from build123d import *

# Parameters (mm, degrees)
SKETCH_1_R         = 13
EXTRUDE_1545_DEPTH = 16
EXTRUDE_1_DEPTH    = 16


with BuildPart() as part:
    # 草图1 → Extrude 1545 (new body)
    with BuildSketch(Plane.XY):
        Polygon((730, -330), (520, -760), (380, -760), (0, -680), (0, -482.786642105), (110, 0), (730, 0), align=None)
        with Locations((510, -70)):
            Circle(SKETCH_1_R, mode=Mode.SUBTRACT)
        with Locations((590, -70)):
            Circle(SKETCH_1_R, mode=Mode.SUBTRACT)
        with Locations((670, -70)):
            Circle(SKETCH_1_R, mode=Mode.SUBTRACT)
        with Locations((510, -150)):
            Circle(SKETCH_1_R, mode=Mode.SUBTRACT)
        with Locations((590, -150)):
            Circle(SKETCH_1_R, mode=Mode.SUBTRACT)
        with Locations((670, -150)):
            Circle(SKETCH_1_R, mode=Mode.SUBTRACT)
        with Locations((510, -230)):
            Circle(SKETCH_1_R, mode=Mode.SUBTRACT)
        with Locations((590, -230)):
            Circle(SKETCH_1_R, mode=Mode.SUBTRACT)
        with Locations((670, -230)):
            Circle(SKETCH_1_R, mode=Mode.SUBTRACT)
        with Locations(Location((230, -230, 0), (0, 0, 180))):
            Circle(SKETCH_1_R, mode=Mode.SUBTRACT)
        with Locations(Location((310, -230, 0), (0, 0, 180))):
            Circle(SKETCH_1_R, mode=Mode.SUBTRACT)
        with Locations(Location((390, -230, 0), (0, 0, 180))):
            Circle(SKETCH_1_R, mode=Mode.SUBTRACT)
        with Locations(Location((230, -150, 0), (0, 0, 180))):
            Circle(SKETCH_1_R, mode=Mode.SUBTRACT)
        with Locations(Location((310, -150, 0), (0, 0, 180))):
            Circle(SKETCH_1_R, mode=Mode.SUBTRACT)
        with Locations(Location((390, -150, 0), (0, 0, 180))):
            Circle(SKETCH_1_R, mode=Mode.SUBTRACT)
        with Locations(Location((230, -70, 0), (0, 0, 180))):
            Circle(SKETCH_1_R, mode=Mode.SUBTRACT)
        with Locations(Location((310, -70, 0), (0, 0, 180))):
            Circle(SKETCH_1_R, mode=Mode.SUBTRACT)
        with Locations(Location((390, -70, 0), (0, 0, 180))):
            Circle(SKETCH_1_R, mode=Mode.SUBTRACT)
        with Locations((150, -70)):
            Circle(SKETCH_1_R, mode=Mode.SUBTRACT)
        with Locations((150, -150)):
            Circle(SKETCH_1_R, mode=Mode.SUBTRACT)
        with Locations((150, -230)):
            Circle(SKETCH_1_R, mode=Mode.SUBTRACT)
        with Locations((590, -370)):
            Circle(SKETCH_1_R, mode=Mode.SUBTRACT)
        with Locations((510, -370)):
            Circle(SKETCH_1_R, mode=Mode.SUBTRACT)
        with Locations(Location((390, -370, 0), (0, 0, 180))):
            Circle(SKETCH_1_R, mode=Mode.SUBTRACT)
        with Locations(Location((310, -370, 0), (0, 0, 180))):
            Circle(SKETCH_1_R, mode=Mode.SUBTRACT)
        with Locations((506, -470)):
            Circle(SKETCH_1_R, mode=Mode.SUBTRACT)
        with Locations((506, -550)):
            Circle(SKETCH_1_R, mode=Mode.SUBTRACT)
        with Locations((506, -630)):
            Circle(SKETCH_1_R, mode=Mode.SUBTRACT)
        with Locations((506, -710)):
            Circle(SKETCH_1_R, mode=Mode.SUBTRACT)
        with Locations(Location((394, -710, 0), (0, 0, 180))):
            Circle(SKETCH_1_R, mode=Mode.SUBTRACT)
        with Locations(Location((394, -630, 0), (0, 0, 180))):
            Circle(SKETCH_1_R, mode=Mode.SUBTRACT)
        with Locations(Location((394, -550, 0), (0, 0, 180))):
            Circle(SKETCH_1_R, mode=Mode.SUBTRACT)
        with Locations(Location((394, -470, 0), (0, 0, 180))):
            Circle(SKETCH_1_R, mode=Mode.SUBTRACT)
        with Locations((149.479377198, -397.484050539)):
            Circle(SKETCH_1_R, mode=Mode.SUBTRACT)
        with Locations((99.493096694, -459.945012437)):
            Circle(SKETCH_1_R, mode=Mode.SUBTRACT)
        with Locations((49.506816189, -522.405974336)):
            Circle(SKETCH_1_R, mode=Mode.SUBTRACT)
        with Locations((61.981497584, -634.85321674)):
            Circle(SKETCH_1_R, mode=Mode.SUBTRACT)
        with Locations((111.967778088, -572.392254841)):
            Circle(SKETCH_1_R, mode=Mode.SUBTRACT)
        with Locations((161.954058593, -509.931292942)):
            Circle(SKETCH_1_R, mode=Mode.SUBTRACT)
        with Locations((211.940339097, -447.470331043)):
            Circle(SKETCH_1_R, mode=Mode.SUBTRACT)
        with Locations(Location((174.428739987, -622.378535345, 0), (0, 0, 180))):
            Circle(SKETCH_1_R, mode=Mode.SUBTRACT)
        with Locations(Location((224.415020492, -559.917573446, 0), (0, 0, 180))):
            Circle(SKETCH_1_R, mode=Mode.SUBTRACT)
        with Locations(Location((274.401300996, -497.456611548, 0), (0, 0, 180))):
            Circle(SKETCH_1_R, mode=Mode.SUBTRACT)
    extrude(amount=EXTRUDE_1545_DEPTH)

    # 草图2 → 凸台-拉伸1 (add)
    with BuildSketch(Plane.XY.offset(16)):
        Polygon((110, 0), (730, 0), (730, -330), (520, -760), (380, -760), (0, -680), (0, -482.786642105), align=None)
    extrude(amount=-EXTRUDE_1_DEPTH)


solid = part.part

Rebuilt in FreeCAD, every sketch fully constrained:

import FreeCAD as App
import Part
import Sketcher
Q = App.Units.Quantity


def add_polygon(sketch, points):
    """Adds a closed chain of lines whose ends are joined by coincident constraints."""
    first, n = sketch.GeometryCount, len(points)
    for a, b in zip(points, points[1:] + points[:1]):
        sketch.addGeometry(Part.LineSegment(App.Vector(*a, 0), App.Vector(*b, 0)), False)
    for i in range(n):
        sketch.addConstraint(Sketcher.Constraint("Coincident", first + i, 2, first + (i + 1) % n, 1))

doc = App.newDocument("Part")
params = doc.addObject("Spreadsheet::Sheet", "Params")
for row, (alias, value) in enumerate([
    ("sketch1_diameter", "26 mm"),
    ("sketch1_width", "620 mm"),
    ("sketch1_width2", "140 mm"),
    ("sketch1_height", "330 mm"),
    ("pad1_length", "16 mm"),
    ("sketch2_width", "620 mm"),
    ("sketch2_width2", "140 mm"),
    ("sketch2_height", "330 mm"),
    ("pad2_length", "16 mm"),
], start=1):
    params.set(f"A{row}", alias)
    params.set(f"B{row}", "=" + value)
    params.setAlias(f"B{row}", alias)

body = doc.addObject("PartDesign::Body", "Body")

# Sketch on XY plane
sketch1 = body.newObject("Sketcher::SketchObject", "Sketch")
sketch1.AttachmentSupport = (doc.getObject("XY_Plane"), [""])
sketch1.MapMode = "FlatFace"
add_polygon(sketch1, [(520, -760), (730, -330), (730, 0), (110, 0), (0, -483), (0, -680), (380, -760)])  # lines 0-6
sketch1.addGeometry(Part.Circle(App.Vector(506, -710, 0), App.Vector(0, 0, 1), 13), False)  # 7
sketch1.addGeometry(Part.Circle(App.Vector(394, -710, 0), App.Vector(0, 0, 1), 13), False)  # 8
sketch1.addGeometry(Part.Circle(App.Vector(506, -630, 0), App.Vector(0, 0, 1), 13), False)  # 9
sketch1.addGeometry(Part.Circle(App.Vector(394, -630, 0), App.Vector(0, 0, 1), 13), False)  # 10
sketch1.addGeometry(Part.Circle(App.Vector(506, -550, 0), App.Vector(0, 0, 1), 13), False)  # 11
sketch1.addGeometry(Part.Circle(App.Vector(394, -550, 0), App.Vector(0, 0, 1), 13), False)  # 12
sketch1.addGeometry(Part.Circle(App.Vector(506, -470, 0), App.Vector(0, 0, 1), 13), False)  # 13
sketch1.addGeometry(Part.Circle(App.Vector(394, -470, 0), App.Vector(0, 0, 1), 13), False)  # 14
sketch1.addGeometry(Part.Circle(App.Vector(224, -560, 0), App.Vector(0, 0, 1), 13), False)  # 15
sketch1.addGeometry(Part.Circle(App.Vector(174, -622, 0), App.Vector(0, 0, 1), 13), False)  # 16
sketch1.addGeometry(Part.Circle(App.Vector(62, -635, 0), App.Vector(0, 0, 1), 13), False)  # 17
sketch1.addGeometry(Part.Circle(App.Vector(112, -572, 0), App.Vector(0, 0, 1), 13), False)  # 18
sketch1.addGeometry(Part.Circle(App.Vector(274, -497, 0), App.Vector(0, 0, 1), 13), False)  # 19
sketch1.addGeometry(Part.Circle(App.Vector(212, -447, 0), App.Vector(0, 0, 1), 13), False)  # 20
sketch1.addGeometry(Part.Circle(App.Vector(162, -510, 0), App.Vector(0, 0, 1), 13), False)  # 21
sketch1.addGeometry(Part.Circle(App.Vector(50, -522, 0), App.Vector(0, 0, 1), 13), False)  # 22
sketch1.addGeometry(Part.Circle(App.Vector(149, -397, 0), App.Vector(0, 0, 1), 13), False)  # 23
sketch1.addGeometry(Part.Circle(App.Vector(99, -460, 0), App.Vector(0, 0, 1), 13), False)  # 24
sketch1.addGeometry(Part.Circle(App.Vector(590, -370, 0), App.Vector(0, 0, 1), 13), False)  # 25
sketch1.addGeometry(Part.Circle(App.Vector(670, -230, 0), App.Vector(0, 0, 1), 13), False)  # 26
sketch1.addGeometry(Part.Circle(App.Vector(590, -230, 0), App.Vector(0, 0, 1), 13), False)  # 27
sketch1.addGeometry(Part.Circle(App.Vector(510, -370, 0), App.Vector(0, 0, 1), 13), False)  # 28
sketch1.addGeometry(Part.Circle(App.Vector(390, -370, 0), App.Vector(0, 0, 1), 13), False)  # 29
sketch1.addGeometry(Part.Circle(App.Vector(510, -230, 0), App.Vector(0, 0, 1), 13), False)  # 30
sketch1.addGeometry(Part.Circle(App.Vector(390, -230, 0), App.Vector(0, 0, 1), 13), False)  # 31
sketch1.addGeometry(Part.Circle(App.Vector(670, -150, 0), App.Vector(0, 0, 1), 13), False)  # 32
sketch1.addGeometry(Part.Circle(App.Vector(590, -150, 0), App.Vector(0, 0, 1), 13), False)  # 33
sketch1.addGeometry(Part.Circle(App.Vector(670, -70, 0), App.Vector(0, 0, 1), 13), False)  # 34
sketch1.addGeometry(Part.Circle(App.Vector(590, -70, 0), App.Vector(0, 0, 1), 13), False)  # 35
sketch1.addGeometry(Part.Circle(App.Vector(510, -150, 0), App.Vector(0, 0, 1), 13), False)  # 36
sketch1.addGeometry(Part.Circle(App.Vector(390, -150, 0), App.Vector(0, 0, 1), 13), False)  # 37
sketch1.addGeometry(Part.Circle(App.Vector(510, -70, 0), App.Vector(0, 0, 1), 13), False)  # 38
sketch1.addGeometry(Part.Circle(App.Vector(390, -70, 0), App.Vector(0, 0, 1), 13), False)  # 39
sketch1.addGeometry(Part.Circle(App.Vector(310, -370, 0), App.Vector(0, 0, 1), 13), False)  # 40
sketch1.addGeometry(Part.Circle(App.Vector(310, -230, 0), App.Vector(0, 0, 1), 13), False)  # 41
sketch1.addGeometry(Part.Circle(App.Vector(230, -230, 0), App.Vector(0, 0, 1), 13), False)  # 42
sketch1.addGeometry(Part.Circle(App.Vector(150, -230, 0), App.Vector(0, 0, 1), 13), False)  # 43
sketch1.addGeometry(Part.Circle(App.Vector(310, -150, 0), App.Vector(0, 0, 1), 13), False)  # 44
sketch1.addGeometry(Part.Circle(App.Vector(230, -150, 0), App.Vector(0, 0, 1), 13), False)  # 45
sketch1.addGeometry(Part.Circle(App.Vector(310, -70, 0), App.Vector(0, 0, 1), 13), False)  # 46
sketch1.addGeometry(Part.Circle(App.Vector(230, -70, 0), App.Vector(0, 0, 1), 13), False)  # 47
sketch1.addGeometry(Part.Circle(App.Vector(150, -150, 0), App.Vector(0, 0, 1), 13), False)  # 48
sketch1.addGeometry(Part.Circle(App.Vector(150, -70, 0), App.Vector(0, 0, 1), 13), False)  # 49
sketch1.addConstraint([
    Sketcher.Constraint("Vertical", 1),
    Sketcher.Constraint("Horizontal", 2),
    Sketcher.Constraint("Vertical", 4),
    Sketcher.Constraint("Horizontal", 6),
    Sketcher.Constraint("Equal", 7, 8),
    Sketcher.Constraint("Equal", 8, 9),
    Sketcher.Constraint("Equal", 9, 10),
    Sketcher.Constraint("Equal", 10, 11),
    Sketcher.Constraint("Equal", 11, 12),
    Sketcher.Constraint("Equal", 12, 13),
    Sketcher.Constraint("Equal", 13, 14),
    Sketcher.Constraint("Equal", 14, 15),
    Sketcher.Constraint("Equal", 15, 16),
    Sketcher.Constraint("Equal", 16, 17),
    Sketcher.Constraint("Equal", 17, 18),
    Sketcher.Constraint("Equal", 18, 19),
    Sketcher.Constraint("Equal", 19, 20),
    Sketcher.Constraint("Equal", 20, 21),
    Sketcher.Constraint("Equal", 21, 22),
    Sketcher.Constraint("Equal", 22, 23),
    Sketcher.Constraint("Equal", 23, 24),
    Sketcher.Constraint("Equal", 24, 25),
    Sketcher.Constraint("Equal", 25, 26),
    Sketcher.Constraint("Equal", 26, 27),
    Sketcher.Constraint("Equal", 27, 28),
    Sketcher.Constraint("Equal", 28, 29),
    Sketcher.Constraint("Equal", 29, 30),
    Sketcher.Constraint("Equal", 30, 31),
    Sketcher.Constraint("Equal", 31, 32),
    Sketcher.Constraint("Equal", 32, 33),
    Sketcher.Constraint("Equal", 33, 34),
    Sketcher.Constraint("Equal", 34, 35),
    Sketcher.Constraint("Equal", 35, 36),
    Sketcher.Constraint("Equal", 36, 37),
    Sketcher.Constraint("Equal", 37, 38),
    Sketcher.Constraint("Equal", 38, 39),
    Sketcher.Constraint("Equal", 39, 40),
    Sketcher.Constraint("Equal", 40, 41),
    Sketcher.Constraint("Equal", 41, 42),
    Sketcher.Constraint("Equal", 42, 43),
    Sketcher.Constraint("Equal", 43, 44),
    Sketcher.Constraint("Equal", 44, 45),
    Sketcher.Constraint("Equal", 45, 46),
    Sketcher.Constraint("Equal", 46, 47),
    Sketcher.Constraint("Equal", 47, 48),
    Sketcher.Constraint("Equal", 48, 49),
    Sketcher.Constraint("PointOnObject", 1, 2, -1),
    Sketcher.Constraint("PointOnObject", 3, 2, -2),
    Sketcher.Constraint("Horizontal", 7, 3, 8, 3),
    Sketcher.Constraint("Horizontal", 9, 3, 10, 3),
    Sketcher.Constraint("Horizontal", 11, 3, 12, 3),
    Sketcher.Constraint("Horizontal", 13, 3, 14, 3),
    Sketcher.Constraint("Horizontal", 26, 3, 27, 3),
    Sketcher.Constraint("Horizontal", 25, 3, 28, 3),
    Sketcher.Constraint("Horizontal", 28, 3, 29, 3),
    Sketcher.Constraint("Horizontal", 27, 3, 30, 3),
    Sketcher.Constraint("Horizontal", 30, 3, 31, 3),
    Sketcher.Constraint("Horizontal", 32, 3, 33, 3),
    Sketcher.Constraint("Horizontal", 34, 3, 35, 3),
    Sketcher.Constraint("Horizontal", 33, 3, 36, 3),
    Sketcher.Constraint("Horizontal", 36, 3, 37, 3),
    Sketcher.Constraint("Horizontal", 35, 3, 38, 3),
    Sketcher.Constraint("Horizontal", 38, 3, 39, 3),
    Sketcher.Constraint("Horizontal", 29, 3, 40, 3),
    Sketcher.Constraint("Horizontal", 31, 3, 41, 3),
    Sketcher.Constraint("Horizontal", 41, 3, 42, 3),
    Sketcher.Constraint("Horizontal", 42, 3, 43, 3),
    Sketcher.Constraint("Horizontal", 37, 3, 44, 3),
    Sketcher.Constraint("Horizontal", 44, 3, 45, 3),
    Sketcher.Constraint("Horizontal", 39, 3, 46, 3),
    Sketcher.Constraint("Horizontal", 46, 3, 47, 3),
    Sketcher.Constraint("Horizontal", 45, 3, 48, 3),
    Sketcher.Constraint("Horizontal", 47, 3, 49, 3),
    Sketcher.Constraint("Vertical", 7, 3, 9, 3),
    Sketcher.Constraint("Vertical", 8, 3, 10, 3),
    Sketcher.Constraint("Vertical", 9, 3, 11, 3),
    Sketcher.Constraint("Vertical", 10, 3, 12, 3),
    Sketcher.Constraint("Vertical", 11, 3, 13, 3),
    Sketcher.Constraint("Vertical", 12, 3, 14, 3),
    Sketcher.Constraint("Vertical", 25, 3, 27, 3),
    Sketcher.Constraint("Vertical", 28, 3, 30, 3),
    Sketcher.Constraint("Vertical", 29, 3, 31, 3),
    Sketcher.Constraint("Vertical", 26, 3, 32, 3),
    Sketcher.Constraint("Vertical", 27, 3, 33, 3),
    Sketcher.Constraint("Vertical", 32, 3, 34, 3),
    Sketcher.Constraint("Vertical", 33, 3, 35, 3),
    Sketcher.Constraint("Vertical", 30, 3, 36, 3),
    Sketcher.Constraint("Vertical", 31, 3, 37, 3),
    Sketcher.Constraint("Vertical", 36, 3, 38, 3),
    Sketcher.Constraint("Vertical", 37, 3, 39, 3),
    Sketcher.Constraint("Vertical", 40, 3, 41, 3),
    Sketcher.Constraint("Vertical", 41, 3, 44, 3),
    Sketcher.Constraint("Vertical", 42, 3, 45, 3),
    Sketcher.Constraint("Vertical", 44, 3, 46, 3),
    Sketcher.Constraint("Vertical", 45, 3, 47, 3),
    Sketcher.Constraint("Vertical", 43, 3, 48, 3),
    Sketcher.Constraint("Vertical", 48, 3, 49, 3),
    Sketcher.Constraint("Diameter", 7, Q("26 mm")),
    Sketcher.Constraint("DistanceX", 2, 2, 2, 1, Q("620 mm")),
    Sketcher.Constraint("DistanceX", 6, 1, 6, 2, Q("140 mm")),
    Sketcher.Constraint("DistanceY", 1, 1, 1, 2, Q("330 mm")),
    Sketcher.Constraint("DistanceX", -1, 1, 7, 3, Q("506 mm")),
    Sketcher.Constraint("DistanceY", 7, 3, -1, 1, Q("710 mm")),
    Sketcher.Constraint("DistanceX", -1, 1, 8, 3, Q("394 mm")),
    Sketcher.Constraint("DistanceY", 9, 3, -1, 1, Q("630 mm")),
    Sketcher.Constraint("DistanceY", 11, 3, -1, 1, Q("550 mm")),
    Sketcher.Constraint("DistanceY", 13, 3, -1, 1, Q("470 mm")),
    Sketcher.Constraint("DistanceX", -1, 1, 25, 3, Q("590 mm")),
    Sketcher.Constraint("DistanceY", 25, 3, -1, 1, Q("370 mm")),
    Sketcher.Constraint("DistanceX", -1, 1, 26, 3, Q("670 mm")),
    Sketcher.Constraint("DistanceY", 26, 3, -1, 1, Q("230 mm")),
    Sketcher.Constraint("DistanceX", -1, 1, 28, 3, Q("510 mm")),
    Sketcher.Constraint("DistanceX", -1, 1, 29, 3, Q("390 mm")),
    Sketcher.Constraint("DistanceY", 32, 3, -1, 1, Q("150 mm")),
    Sketcher.Constraint("DistanceY", 34, 3, -1, 1, Q("70 mm")),
    Sketcher.Constraint("DistanceX", -1, 1, 40, 3, Q("310 mm")),
    Sketcher.Constraint("DistanceX", -1, 1, 42, 3, Q("230 mm")),
    Sketcher.Constraint("DistanceX", -1, 1, 43, 3, Q("150 mm")),
    Sketcher.Constraint("DistanceX", -1, 1, 0, 2, Q("730 mm")),
    Sketcher.Constraint("DistanceY", 4, 2, -1, 1, Q("680 mm")),
    Sketcher.Constraint("DistanceX", -1, 1, 5, 2, Q("380 mm")),
    Sketcher.Constraint("DistanceY", 5, 2, -1, 1, Q("760 mm")),
    Sketcher.Constraint("DistanceX", -1, 1, 19, 3, Q("274.401301 mm")),
    Sketcher.Constraint("DistanceX", 16, 3, 20, 3, Q("37.511599 mm")),
    Sketcher.Constraint("Distance", 3, Q("495.159511 mm")),
    Sketcher.Constraint("DistanceX", -1, 1, 15, 3, Q("224.41502 mm")),
    Sketcher.Constraint("DistanceX", -1, 1, 16, 3, Q("174.42874 mm")),
    Sketcher.Constraint("DistanceX", -1, 1, 18, 3, Q("111.967778 mm")),
    Sketcher.Constraint("DistanceY", 19, 3, -1, 1, Q("497.456612 mm")),
    Sketcher.Constraint("DistanceY", 20, 3, -1, 1, Q("447.470331 mm")),
    Sketcher.Constraint("DistanceX", -1, 1, 21, 3, Q("161.954059 mm")),
    Sketcher.Constraint("DistanceY", 23, 3, -1, 1, Q("397.484051 mm")),
    Sketcher.Constraint("DistanceY", 16, 3, 15, 3, Q("62.460962 mm")),
    Sketcher.Constraint("DistanceY", 17, 3, 16, 3, Q("12.474681 mm")),
    Sketcher.Constraint("DistanceX", 17, 3, 18, 3, Q("49.986281 mm")),
    Sketcher.Constraint("DistanceY", 17, 3, 18, 3, Q("62.460962 mm")),
    Sketcher.Constraint("DistanceY", 15, 3, 19, 3, Q("62.460962 mm")),
    Sketcher.Constraint("DistanceY", 15, 3, 21, 3, Q("49.986281 mm")),
    Sketcher.Constraint("DistanceX", 22, 3, 18, 3, Q("62.460962 mm")),
    Sketcher.Constraint("DistanceY", 18, 3, 22, 3, Q("49.986281 mm")),
    Sketcher.Constraint("DistanceX", 23, 3, 20, 3, Q("62.460962 mm")),
    Sketcher.Constraint("DistanceX", 24, 3, 23, 3, Q("49.986281 mm")),
    Sketcher.Constraint("DistanceY", 24, 3, 23, 3, Q("62.460962 mm")),
])
sketch1.setExpression("Constraints[104]", "Params.sketch1_diameter")
sketch1.setExpression("Constraints[105]", "Params.sketch1_width")
sketch1.setExpression("Constraints[106]", "Params.sketch1_width2")
sketch1.setExpression("Constraints[107]", "Params.sketch1_height")
pad1 = body.newObject("PartDesign::Pad", "Pad")
pad1.Profile = sketch1
pad1.setExpression("Length", "Params.pad1_length")

# Sketch on XY plane
sketch2 = body.newObject("Sketcher::SketchObject", "Sketch001")
sketch2.AttachmentSupport = (doc.getObject("XY_Plane"), [""])
sketch2.MapMode = "FlatFace"
sketch2.AttachmentOffset = App.Placement(App.Vector(0, 0, 16), App.Rotation())
add_polygon(sketch2, [(730, 0), (110, 0), (0, -483), (0, -680), (380, -760), (520, -760), (730, -330)])  # lines 0-6
sketch2.addConstraint([
    Sketcher.Constraint("Horizontal", 0),
    Sketcher.Constraint("Vertical", 2),
    Sketcher.Constraint("Horizontal", 4),
    Sketcher.Constraint("Vertical", 6),
    Sketcher.Constraint("PointOnObject", 0, 2, -1),
    Sketcher.Constraint("PointOnObject", 1, 2, -2),
    Sketcher.Constraint("DistanceX", 0, 2, 0, 1, Q("620 mm")),
    Sketcher.Constraint("DistanceX", 4, 1, 4, 2, Q("140 mm")),
    Sketcher.Constraint("DistanceY", 6, 1, 6, 2, Q("330 mm")),
    Sketcher.Constraint("DistanceX", -1, 1, 0, 2, Q("110 mm")),
    Sketcher.Constraint("DistanceY", 2, 2, -1, 1, Q("680 mm")),
    Sketcher.Constraint("DistanceX", -1, 1, 3, 2, Q("380 mm")),
    Sketcher.Constraint("DistanceY", 3, 2, -1, 1, Q("760 mm")),
    Sketcher.Constraint("Distance", 1, Q("495.159511 mm")),
])
sketch2.setExpression("Constraints[13]", "Params.sketch2_width")
sketch2.setExpression("Constraints[14]", "Params.sketch2_width2")
sketch2.setExpression("Constraints[15]", "Params.sketch2_height")
pad2 = body.newObject("PartDesign::Pad", "Pad001")
pad2.Profile = sketch2
pad2.setExpression("Length", "Params.pad2_length")
pad2.Reversed = True

doc.recompute()
